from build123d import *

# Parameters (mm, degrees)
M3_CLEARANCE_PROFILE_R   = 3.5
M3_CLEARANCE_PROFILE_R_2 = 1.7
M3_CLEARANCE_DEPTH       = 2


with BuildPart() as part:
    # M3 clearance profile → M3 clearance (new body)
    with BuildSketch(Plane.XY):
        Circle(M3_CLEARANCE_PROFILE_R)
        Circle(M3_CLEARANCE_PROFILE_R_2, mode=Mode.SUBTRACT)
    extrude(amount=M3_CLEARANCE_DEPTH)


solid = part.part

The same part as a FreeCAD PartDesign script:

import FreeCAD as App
import Part
import Sketcher
Q = App.Units.Quantity

doc = App.newDocument("Part")
body = doc.addObject("PartDesign::Body", "Body")

sketch1 = body.newObject("Sketcher::SketchObject", "Sketch")
sketch1.AttachmentSupport = (doc.getObject("XY_Plane"), [""])
sketch1.MapMode = "FlatFace"
sketch1.addGeometry([
    Part.Circle(App.Vector(0, 0, 0), App.Vector(0, 0, 1), 3.5),
    Part.Circle(App.Vector(0, 0, 0), App.Vector(0, 0, 1), 1.7),
], False)
sketch1.addConstraint([
    Sketcher.Constraint("Coincident", 0, 3, -1, 1),
    Sketcher.Constraint("Coincident", 1, 3, -1, 1),
    Sketcher.Constraint("Diameter", 0, Q("7 mm")),
    Sketcher.Constraint("Diameter", 1, Q("3.4 mm")),
])
pad1 = body.newObject("PartDesign::Pad", "Pad")
pad1.Profile = sketch1
pad1.Length = 2

doc.recompute()
